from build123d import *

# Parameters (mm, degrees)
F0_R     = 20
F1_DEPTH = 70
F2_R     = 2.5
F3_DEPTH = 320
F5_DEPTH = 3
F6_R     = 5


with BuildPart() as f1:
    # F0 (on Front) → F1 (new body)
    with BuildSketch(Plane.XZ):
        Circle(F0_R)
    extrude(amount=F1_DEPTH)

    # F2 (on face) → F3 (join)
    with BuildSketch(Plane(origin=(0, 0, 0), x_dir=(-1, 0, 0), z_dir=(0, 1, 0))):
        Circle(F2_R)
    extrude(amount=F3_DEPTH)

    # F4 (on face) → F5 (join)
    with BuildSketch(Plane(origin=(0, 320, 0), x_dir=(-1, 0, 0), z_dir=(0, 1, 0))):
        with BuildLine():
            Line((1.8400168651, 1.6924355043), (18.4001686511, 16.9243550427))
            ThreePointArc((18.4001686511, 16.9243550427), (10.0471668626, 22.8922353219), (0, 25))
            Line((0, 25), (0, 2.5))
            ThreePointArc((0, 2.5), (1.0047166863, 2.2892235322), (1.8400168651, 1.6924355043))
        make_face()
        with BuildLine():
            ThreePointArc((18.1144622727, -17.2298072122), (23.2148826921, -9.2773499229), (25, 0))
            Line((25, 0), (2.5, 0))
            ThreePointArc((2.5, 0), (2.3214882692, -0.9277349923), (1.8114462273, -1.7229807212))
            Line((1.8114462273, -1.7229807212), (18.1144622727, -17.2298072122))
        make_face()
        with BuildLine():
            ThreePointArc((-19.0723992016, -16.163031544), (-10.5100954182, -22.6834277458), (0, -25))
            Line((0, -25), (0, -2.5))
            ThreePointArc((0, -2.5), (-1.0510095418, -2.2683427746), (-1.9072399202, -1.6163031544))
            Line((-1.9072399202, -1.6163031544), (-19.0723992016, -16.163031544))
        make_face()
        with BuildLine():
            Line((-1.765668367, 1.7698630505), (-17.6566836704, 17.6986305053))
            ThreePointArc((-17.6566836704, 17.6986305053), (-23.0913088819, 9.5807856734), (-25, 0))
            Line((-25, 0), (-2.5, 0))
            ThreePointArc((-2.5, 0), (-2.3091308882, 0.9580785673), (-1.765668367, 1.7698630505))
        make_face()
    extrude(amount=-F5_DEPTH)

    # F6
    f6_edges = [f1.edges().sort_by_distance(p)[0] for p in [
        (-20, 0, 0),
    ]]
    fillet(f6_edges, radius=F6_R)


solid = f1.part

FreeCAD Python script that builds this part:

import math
import FreeCAD as App
import Part
import Sketcher

V = App.Vector
Q = App.Units.Quantity


def edges_at(feature, points):
    """Names of the edges that pass closest to the given points."""
    edges = feature.Shape.Edges
    near = lambda p: min(range(len(edges)), key=lambda i: edges[i].distToShape(Part.Vertex(*p))[0])
    return sorted({f"Edge{near(p) + 1}" for p in points})

doc = App.newDocument("Part")
body = doc.addObject("PartDesign::Body", "Body")

# Sketch on XZ plane
sketch1 = body.newObject("Sketcher::SketchObject", "Sketch")
sketch1.AttachmentSupport = (doc.getObject("XZ_Plane"), [""])
sketch1.MapMode = "FlatFace"
sketch1.addGeometry(Part.Circle(V(0, 0, 0), V(0, 0, 1), 20), False)
sketch1.addConstraint([
    Sketcher.Constraint("Coincident", 0, 3, -1, 1),
    Sketcher.Constraint("Diameter", 0, Q("40 mm")),
])
pad1 = body.newObject("PartDesign::Pad", "Pad")
pad1.Profile = sketch1
pad1.Length = 70

# Sketch on XZ plane
sketch2 = body.newObject("Sketcher::SketchObject", "Sketch001")
sketch2.AttachmentSupport = (doc.getObject("XZ_Plane"), [""])
sketch2.MapMode = "FlatFace"
sketch2.addGeometry(Part.Circle(V(0, 0, 0), V(0, 0, 1), 2.5), False)
sketch2.addConstraint([
    Sketcher.Constraint("Coincident", 0, 3, -1, 1),
    Sketcher.Constraint("Diameter", 0, Q("5 mm")),
])
pad2 = body.newObject("PartDesign::Pad", "Pad001")
pad2.Profile = sketch2
pad2.Length = 320
pad2.Reversed = True

# Sketch on XZ plane
sketch3 = body.newObject("Sketcher::SketchObject", "Sketch002")
sketch3.AttachmentSupport = (doc.getObject("XZ_Plane"), [""])
sketch3.MapMode = "FlatFace"
sketch3.AttachmentOffset = App.Placement(V(0, 0, -320), App.Rotation())
sketch3.addGeometry([
    Part.LineSegment(V(-1.840017, 1.692436, 0), V(-18.400169, 16.924355, 0)),  # 0
    Part.ArcOfCircle(Part.Circle(V(0, 0, 0), V(0, 0, 1), 25), math.radians(90), math.radians(137.392353)),  # 1
    Part.LineSegment(V(0, 25, 0), V(0, 2.5, 0)),  # 2
    Part.ArcOfCircle(Part.Circle(V(0, 0, 0), V(0, 0, 1), 2.5), math.radians(90), math.radians(137.392353)),  # 3
    Part.ArcOfCircle(Part.Circle(V(0, 0, 0), V(0, 0, 1), 25), math.radians(180), math.radians(223.566205)),  # 4
    Part.LineSegment(V(-25, 0, 0), V(-2.5, 0, 0)),  # 5
    Part.ArcOfCircle(Part.Circle(V(0, 0, 0), V(0, 0, 1), 2.5), math.radians(180), math.radians(223.566205)),  # 6
    Part.LineSegment(V(-1.811446, -1.722981, 0), V(-18.114462, -17.229807, 0)),  # 7
    Part.ArcOfCircle(Part.Circle(V(0, 0, 0), V(0, 0, 1), 25), math.radians(-90), math.radians(-40.279831)),  # 8
    Part.LineSegment(V(0, -25, 0), V(0, -2.5, 0)),  # 9
    Part.ArcOfCircle(Part.Circle(V(0, 0, 0), V(0, 0, 1), 2.5), math.radians(-90), math.radians(-40.27983)),  # 10
    Part.LineSegment(V(1.90724, -1.616303, 0), V(19.072399, -16.163032, 0)),  # 11
    Part.LineSegment(V(1.765668, 1.769863, 0), V(17.656684, 17.698631, 0)),  # 12
    Part.ArcOfCircle(Part.Circle(V(0, 0, 0), V(0, 0, 1), 25), math.radians(0), math.radians(45.067978)),  # 13
    Part.LineSegment(V(25, 0, 0), V(2.5, 0, 0)),  # 14
    Part.ArcOfCircle(Part.Circle(V(0, 0, 0), V(0, 0, 1), 2.5), math.radians(0), math.radians(45.067978)),  # 15
], False)
sketch3.addConstraint([
    Sketcher.Constraint("Coincident", 0, 2, 1, 2),
    Sketcher.Constraint("Coincident", 1, 1, 2, 1),
    Sketcher.Constraint("Coincident", 2, 2, 3, 1),
    Sketcher.Constraint("Coincident", 3, 2, 0, 1),
    Sketcher.Constraint("Coincident", 4, 1, 5, 1),
    Sketcher.Constraint("Coincident", 5, 2, 6, 1),
    Sketcher.Constraint("Coincident", 6, 2, 7, 1),
    Sketcher.Constraint("Coincident", 7, 2, 4, 2),
    Sketcher.Constraint("Coincident", 8, 1, 9, 1),
    Sketcher.Constraint("Coincident", 9, 2, 10, 1),
    Sketcher.Constraint("Coincident", 10, 2, 11, 1),
    Sketcher.Constraint("Coincident", 11, 2, 8, 2),
    Sketcher.Constraint("Coincident", 12, 2, 13, 2),
    Sketcher.Constraint("Coincident", 13, 1, 14, 1),
    Sketcher.Constraint("Coincident", 14, 2, 15, 1),
    Sketcher.Constraint("Coincident", 15, 2, 12, 1),
    Sketcher.Constraint("Vertical", 2),
    Sketcher.Constraint("Horizontal", 5),
    Sketcher.Constraint("Vertical", 9),
    Sketcher.Constraint("Horizontal", 14),
    Sketcher.Constraint("Coincident", 1, 3, -1, 1),
    Sketcher.Constraint("Coincident", 3, 3, -1, 1),
    Sketcher.Constraint("Coincident", 4, 3, -1, 1),
    Sketcher.Constraint("Coincident", 6, 3, -1, 1),
    Sketcher.Constraint("Coincident", 8, 3, -1, 1),
    Sketcher.Constraint("Coincident", 10, 3, -1, 1),
    Sketcher.Constraint("Coincident", 13, 3, -1, 1),
    Sketcher.Constraint("Coincident", 15, 3, -1, 1),
    Sketcher.Constraint("Equal", 1, 4),
    Sketcher.Constraint("Equal", 3, 6),
    Sketcher.Constraint("Equal", 4, 8),
    Sketcher.Constraint("Equal", 6, 10),
    Sketcher.Constraint("Equal", 8, 13),
    Sketcher.Constraint("Equal", 10, 15),
    Sketcher.Constraint("PointOnObject", 1, 1, -2),
    Sketcher.Constraint("PointOnObject", 4, 1, -1),
    Sketcher.Constraint("PointOnObject", 8, 1, -2),
    Sketcher.Constraint("PointOnObject", 13, 1, -1),
    Sketcher.Constraint("Radius", 1, Q("25 mm")),
    Sketcher.Constraint("Radius", 3, Q("2.5 mm")),
    Sketcher.Constraint("DistanceX", -1, 1, 11, 2, Q("19.072399 mm")),
    Sketcher.Constraint("DistanceX", 0, 2, -1, 1, Q("18.400169 mm")),
    Sketcher.Constraint("DistanceY", 6, 2, -1, 1, Q("1.722981 mm")),
    Sketcher.Constraint("DistanceX", -1, 1, 10, 2, Q("1.90724 mm")),
    Sketcher.Constraint("DistanceY", -1, 1, 12, 2, Q("17.698631 mm")),
    Sketcher.Constraint("DistanceX", -1, 1, 15, 2, Q("1.765668 mm")),
    Sketcher.Constraint("DistanceX", 3, 2, -1, 1, Q("1.840017 mm")),
    Sketcher.Constraint("DistanceX", 7, 2, -1, 1, Q("18.114462 mm")),
])
pad3 = body.newObject("PartDesign::Pad", "Pad002")
pad3.Profile = sketch3
pad3.Length = 3
doc.recompute()

fillet = body.newObject("PartDesign::Fillet", "Fillet")
fillet.Base = (pad3, edges_at(pad3, [(-20, 0, 0)]))
fillet.Radius = 5

doc.recompute()
